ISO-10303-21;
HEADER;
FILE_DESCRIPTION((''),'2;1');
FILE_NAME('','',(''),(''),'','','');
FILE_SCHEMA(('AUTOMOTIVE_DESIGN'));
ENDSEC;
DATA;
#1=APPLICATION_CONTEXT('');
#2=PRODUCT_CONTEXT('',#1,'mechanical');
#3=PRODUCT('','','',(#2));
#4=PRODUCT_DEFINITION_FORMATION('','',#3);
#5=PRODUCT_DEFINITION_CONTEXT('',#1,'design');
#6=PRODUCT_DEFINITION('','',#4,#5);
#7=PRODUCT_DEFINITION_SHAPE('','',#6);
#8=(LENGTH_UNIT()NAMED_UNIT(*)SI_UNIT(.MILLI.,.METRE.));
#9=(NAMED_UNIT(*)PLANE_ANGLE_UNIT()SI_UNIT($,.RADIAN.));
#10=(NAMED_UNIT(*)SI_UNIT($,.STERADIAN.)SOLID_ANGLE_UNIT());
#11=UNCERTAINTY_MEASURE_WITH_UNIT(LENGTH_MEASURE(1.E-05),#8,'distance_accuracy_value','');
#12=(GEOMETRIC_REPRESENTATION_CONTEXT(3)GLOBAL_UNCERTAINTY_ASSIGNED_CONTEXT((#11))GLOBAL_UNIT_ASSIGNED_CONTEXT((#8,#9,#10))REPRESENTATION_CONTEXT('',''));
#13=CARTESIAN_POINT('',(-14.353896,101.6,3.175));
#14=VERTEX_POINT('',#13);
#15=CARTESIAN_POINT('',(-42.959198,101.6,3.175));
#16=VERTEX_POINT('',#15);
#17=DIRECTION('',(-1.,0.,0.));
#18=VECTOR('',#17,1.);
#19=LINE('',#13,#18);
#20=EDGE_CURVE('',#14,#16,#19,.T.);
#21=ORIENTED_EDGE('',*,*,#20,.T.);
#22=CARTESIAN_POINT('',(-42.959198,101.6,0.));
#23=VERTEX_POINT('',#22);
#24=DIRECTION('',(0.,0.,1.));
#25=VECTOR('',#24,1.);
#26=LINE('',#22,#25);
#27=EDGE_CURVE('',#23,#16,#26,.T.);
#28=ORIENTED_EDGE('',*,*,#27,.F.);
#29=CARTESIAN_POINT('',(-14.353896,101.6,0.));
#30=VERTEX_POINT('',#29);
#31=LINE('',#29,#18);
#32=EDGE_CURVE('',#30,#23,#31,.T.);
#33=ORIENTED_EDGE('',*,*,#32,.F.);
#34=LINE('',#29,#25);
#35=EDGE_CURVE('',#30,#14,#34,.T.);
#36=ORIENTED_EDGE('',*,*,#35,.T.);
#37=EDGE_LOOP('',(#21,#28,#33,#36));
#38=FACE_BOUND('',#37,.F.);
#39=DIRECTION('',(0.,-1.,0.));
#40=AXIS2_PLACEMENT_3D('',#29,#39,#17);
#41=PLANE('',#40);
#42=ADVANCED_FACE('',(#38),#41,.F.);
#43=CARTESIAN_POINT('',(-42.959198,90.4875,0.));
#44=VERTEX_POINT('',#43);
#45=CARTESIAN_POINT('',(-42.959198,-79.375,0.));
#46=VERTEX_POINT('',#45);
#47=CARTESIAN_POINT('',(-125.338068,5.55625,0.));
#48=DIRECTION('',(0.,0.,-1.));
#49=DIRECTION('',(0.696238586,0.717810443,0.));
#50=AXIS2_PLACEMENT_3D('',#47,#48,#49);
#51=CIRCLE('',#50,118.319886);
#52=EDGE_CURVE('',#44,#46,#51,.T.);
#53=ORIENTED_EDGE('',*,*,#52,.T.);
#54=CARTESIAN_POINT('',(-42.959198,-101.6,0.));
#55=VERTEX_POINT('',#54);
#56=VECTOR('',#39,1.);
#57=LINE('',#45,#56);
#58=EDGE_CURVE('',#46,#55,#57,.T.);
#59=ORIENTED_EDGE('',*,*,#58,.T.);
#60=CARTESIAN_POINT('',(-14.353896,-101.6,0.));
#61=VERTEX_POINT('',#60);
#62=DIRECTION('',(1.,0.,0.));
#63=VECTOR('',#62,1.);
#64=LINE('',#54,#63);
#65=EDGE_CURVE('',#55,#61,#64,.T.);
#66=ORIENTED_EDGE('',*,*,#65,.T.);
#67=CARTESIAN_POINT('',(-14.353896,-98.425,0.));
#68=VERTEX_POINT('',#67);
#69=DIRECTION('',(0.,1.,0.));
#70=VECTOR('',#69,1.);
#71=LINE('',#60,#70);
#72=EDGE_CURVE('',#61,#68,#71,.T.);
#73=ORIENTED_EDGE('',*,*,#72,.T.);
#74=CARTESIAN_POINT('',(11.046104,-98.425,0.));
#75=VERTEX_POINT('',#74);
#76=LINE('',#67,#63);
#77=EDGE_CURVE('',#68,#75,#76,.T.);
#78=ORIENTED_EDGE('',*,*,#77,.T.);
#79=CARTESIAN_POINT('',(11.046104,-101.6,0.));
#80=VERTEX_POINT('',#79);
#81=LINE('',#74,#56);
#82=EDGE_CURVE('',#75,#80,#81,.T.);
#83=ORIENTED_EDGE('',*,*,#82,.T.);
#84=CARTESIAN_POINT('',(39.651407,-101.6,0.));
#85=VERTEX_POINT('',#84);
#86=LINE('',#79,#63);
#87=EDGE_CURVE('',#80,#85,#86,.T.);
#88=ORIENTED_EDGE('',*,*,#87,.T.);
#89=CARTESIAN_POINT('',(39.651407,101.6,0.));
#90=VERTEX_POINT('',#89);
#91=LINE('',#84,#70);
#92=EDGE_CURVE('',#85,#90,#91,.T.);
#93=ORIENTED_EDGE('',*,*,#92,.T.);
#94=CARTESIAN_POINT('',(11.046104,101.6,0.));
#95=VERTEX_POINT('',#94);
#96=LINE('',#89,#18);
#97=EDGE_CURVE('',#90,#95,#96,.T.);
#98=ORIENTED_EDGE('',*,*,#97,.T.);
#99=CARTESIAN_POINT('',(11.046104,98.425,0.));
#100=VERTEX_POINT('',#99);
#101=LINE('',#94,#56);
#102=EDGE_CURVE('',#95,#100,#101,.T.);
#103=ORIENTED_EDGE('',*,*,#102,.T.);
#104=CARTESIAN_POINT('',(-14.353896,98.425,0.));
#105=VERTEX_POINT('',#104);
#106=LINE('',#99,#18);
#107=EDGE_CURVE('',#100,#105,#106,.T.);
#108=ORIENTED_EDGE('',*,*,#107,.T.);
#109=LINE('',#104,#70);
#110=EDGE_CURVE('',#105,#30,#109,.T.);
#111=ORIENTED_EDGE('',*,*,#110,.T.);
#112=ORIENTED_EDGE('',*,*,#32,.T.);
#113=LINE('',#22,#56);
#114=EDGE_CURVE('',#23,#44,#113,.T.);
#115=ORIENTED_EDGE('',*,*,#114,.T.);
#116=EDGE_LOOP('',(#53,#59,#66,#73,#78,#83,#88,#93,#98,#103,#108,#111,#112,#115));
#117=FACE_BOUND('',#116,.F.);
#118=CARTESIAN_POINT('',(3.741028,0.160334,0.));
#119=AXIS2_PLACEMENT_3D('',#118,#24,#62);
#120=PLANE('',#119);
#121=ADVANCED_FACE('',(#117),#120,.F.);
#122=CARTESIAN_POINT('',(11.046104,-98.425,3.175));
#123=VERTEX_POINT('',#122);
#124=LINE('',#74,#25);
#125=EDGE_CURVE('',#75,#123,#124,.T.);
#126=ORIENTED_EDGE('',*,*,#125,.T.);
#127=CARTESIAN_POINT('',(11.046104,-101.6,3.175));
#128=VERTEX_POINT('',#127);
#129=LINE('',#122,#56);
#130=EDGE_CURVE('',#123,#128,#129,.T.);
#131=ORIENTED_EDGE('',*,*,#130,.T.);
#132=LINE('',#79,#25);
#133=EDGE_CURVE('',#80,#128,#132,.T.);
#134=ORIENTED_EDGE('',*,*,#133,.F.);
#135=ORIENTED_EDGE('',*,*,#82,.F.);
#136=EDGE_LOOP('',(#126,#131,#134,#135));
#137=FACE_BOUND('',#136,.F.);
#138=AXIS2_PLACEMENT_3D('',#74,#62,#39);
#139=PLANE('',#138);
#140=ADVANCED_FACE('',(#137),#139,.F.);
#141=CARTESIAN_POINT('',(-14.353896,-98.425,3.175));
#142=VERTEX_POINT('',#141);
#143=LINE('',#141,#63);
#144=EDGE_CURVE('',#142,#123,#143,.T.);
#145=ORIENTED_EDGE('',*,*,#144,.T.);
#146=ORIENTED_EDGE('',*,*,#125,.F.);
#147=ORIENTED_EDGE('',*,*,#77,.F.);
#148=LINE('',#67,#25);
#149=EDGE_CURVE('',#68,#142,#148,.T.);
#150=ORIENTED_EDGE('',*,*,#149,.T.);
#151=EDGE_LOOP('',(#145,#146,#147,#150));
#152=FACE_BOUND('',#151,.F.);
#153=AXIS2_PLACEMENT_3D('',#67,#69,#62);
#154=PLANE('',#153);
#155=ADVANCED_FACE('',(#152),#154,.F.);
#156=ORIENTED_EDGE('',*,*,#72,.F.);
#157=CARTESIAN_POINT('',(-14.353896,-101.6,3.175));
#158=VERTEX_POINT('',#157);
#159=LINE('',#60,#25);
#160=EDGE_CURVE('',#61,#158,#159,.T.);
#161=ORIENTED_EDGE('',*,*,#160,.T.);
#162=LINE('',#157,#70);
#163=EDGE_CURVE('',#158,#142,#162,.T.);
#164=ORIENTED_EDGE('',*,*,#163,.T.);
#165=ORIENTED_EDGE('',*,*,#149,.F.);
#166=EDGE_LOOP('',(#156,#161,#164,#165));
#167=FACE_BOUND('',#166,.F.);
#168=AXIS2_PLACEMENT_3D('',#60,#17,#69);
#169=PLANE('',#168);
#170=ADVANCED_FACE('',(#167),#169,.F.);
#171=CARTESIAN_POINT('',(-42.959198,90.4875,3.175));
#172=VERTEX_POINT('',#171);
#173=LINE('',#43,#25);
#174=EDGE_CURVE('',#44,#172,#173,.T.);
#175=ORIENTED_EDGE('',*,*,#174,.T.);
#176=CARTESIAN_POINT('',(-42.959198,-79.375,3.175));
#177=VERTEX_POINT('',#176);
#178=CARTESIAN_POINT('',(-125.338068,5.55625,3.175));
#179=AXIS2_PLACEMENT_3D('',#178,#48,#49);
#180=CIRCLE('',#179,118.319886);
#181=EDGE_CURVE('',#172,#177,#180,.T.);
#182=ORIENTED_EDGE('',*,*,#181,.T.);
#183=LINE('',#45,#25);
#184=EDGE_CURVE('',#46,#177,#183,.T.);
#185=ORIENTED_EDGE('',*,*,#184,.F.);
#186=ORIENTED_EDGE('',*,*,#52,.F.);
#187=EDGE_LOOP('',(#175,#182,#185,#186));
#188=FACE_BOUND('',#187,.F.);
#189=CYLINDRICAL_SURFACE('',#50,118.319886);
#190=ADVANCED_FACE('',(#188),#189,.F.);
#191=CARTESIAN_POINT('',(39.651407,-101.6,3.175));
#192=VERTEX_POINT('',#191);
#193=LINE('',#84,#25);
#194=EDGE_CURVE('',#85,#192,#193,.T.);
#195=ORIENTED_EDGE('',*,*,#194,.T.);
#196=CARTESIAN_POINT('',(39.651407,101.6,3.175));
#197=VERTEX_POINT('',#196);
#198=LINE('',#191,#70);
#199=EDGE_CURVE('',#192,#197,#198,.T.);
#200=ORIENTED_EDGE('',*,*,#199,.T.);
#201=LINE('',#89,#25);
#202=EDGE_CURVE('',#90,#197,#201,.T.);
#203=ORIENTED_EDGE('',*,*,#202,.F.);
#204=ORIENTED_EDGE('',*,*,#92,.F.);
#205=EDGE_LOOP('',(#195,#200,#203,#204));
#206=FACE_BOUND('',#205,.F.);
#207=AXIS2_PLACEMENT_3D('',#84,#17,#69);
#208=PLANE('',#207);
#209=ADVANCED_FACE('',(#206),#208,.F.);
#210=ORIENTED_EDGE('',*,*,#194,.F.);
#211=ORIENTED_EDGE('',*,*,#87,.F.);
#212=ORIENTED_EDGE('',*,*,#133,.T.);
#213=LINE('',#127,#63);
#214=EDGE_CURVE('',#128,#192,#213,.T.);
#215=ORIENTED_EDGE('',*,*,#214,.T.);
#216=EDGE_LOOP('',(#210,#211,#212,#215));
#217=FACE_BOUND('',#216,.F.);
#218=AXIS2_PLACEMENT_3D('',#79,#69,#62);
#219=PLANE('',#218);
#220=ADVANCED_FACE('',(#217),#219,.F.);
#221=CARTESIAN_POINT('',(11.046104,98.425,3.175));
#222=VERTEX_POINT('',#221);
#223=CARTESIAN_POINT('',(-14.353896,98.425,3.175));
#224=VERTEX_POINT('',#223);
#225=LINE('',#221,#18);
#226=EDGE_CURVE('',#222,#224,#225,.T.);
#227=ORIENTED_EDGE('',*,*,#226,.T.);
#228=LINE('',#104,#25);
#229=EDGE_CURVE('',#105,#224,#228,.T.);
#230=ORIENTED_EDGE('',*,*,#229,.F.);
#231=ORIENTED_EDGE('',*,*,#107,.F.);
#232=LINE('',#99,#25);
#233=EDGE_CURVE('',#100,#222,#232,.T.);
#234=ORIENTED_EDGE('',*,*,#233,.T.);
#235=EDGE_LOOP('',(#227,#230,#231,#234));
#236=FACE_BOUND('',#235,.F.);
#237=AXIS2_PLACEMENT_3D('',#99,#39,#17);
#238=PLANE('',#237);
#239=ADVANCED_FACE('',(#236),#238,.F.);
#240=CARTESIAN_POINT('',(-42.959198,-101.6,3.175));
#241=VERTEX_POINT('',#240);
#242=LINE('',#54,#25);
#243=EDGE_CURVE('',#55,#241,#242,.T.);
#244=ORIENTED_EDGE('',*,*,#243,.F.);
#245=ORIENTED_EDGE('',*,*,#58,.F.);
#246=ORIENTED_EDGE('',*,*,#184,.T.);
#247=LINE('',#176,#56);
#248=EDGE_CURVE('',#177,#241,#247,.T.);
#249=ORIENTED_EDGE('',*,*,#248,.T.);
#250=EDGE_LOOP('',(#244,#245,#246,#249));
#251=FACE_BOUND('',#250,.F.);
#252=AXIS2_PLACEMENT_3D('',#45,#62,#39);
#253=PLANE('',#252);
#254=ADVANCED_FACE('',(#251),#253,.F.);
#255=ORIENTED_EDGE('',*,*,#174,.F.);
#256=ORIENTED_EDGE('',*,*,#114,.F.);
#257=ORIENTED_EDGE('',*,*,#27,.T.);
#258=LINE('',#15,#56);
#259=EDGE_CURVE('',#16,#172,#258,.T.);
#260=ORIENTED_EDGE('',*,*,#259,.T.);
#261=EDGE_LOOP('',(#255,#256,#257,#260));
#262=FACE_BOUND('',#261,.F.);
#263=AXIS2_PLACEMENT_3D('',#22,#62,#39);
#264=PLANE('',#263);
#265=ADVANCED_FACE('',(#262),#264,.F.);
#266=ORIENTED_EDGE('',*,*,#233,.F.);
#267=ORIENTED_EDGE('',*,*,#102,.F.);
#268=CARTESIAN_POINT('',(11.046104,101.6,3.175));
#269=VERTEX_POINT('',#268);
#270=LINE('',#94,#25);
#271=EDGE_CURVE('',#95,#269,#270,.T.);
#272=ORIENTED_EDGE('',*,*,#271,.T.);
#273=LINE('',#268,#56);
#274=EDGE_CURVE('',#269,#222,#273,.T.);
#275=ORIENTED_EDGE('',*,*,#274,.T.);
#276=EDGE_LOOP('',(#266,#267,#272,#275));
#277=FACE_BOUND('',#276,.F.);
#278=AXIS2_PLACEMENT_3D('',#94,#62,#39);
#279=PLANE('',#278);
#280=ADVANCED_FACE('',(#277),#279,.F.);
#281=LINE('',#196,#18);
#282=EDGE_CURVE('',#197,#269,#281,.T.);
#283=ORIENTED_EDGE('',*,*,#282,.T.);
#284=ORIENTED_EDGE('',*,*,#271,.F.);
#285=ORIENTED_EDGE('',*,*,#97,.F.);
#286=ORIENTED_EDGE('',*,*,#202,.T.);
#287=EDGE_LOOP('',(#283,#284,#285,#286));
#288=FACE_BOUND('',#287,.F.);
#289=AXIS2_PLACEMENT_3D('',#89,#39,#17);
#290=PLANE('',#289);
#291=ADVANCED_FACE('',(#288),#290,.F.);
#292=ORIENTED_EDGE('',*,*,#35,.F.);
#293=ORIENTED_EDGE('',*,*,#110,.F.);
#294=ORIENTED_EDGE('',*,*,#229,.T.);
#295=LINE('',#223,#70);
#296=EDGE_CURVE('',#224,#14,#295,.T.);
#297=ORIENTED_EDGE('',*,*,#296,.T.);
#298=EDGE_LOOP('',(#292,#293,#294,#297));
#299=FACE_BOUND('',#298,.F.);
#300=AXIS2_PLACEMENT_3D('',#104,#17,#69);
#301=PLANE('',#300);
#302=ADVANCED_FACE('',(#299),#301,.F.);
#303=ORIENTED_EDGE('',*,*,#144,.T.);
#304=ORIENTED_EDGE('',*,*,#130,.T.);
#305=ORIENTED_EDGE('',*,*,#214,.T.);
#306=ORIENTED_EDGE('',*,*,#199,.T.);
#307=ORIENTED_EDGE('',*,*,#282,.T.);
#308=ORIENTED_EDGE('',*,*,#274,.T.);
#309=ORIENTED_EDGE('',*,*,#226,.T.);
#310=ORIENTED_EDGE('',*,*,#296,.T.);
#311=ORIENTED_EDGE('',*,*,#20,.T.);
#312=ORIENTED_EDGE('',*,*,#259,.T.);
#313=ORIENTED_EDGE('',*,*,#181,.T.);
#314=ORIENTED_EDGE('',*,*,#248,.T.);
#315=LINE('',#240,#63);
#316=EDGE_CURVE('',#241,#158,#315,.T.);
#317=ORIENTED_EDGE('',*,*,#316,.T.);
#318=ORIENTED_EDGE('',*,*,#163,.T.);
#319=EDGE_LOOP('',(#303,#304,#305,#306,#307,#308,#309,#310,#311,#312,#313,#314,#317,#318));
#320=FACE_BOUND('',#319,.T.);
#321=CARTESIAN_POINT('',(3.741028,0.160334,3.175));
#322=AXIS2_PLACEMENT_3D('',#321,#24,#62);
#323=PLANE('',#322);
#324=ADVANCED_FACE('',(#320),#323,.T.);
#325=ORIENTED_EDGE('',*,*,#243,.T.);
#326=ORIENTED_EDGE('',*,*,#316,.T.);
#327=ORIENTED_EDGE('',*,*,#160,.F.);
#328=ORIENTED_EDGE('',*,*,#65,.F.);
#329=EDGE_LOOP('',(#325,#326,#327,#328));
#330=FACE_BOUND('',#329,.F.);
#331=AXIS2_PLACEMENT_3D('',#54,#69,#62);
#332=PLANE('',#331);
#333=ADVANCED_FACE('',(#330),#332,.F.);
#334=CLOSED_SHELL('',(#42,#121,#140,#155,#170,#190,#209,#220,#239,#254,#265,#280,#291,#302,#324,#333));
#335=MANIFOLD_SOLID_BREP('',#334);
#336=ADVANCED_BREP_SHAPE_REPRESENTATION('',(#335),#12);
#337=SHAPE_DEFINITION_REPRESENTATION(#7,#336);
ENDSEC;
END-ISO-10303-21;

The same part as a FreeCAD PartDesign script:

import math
import FreeCAD as App
import Part
import Sketcher
from FreeCAD import Vector
Q = App.Units.Quantity

doc = App.newDocument("Part")
params = doc.addObject("Spreadsheet::Sheet", "Params")
for row, (alias, value) in enumerate([
    ("sketch1_width", "1 in"),
    ("sketch1_height", "8 in"),
    ("sketch1_height2", "0.875 in"),
    ("sketch1_height3", "0.125 in"),
    ("sketch1_height4", "0.4375 in"),
    ("pad1_length", "0.125 in"),
], start=1):
    params.set(f"A{row}", alias)
    params.set(f"B{row}", "=" + value)
    params.setAlias(f"B{row}", alias)

body = doc.addObject("PartDesign::Body", "Body")

# Sketch on XY plane
sketch1 = body.newObject("Sketcher::SketchObject", "Sketch")
sketch1.AttachmentSupport = (doc.getObject("XY_Plane"), [""])
sketch1.MapMode = "FlatFace"
sketch1.addGeometry([
    Part.LineSegment(Vector(-43, -79.4, 0), Vector(-43, -101.6, 0)),  # 0
    Part.LineSegment(Vector(-43, -101.6, 0), Vector(-14.4, -101.6, 0)),  # 1
    Part.LineSegment(Vector(-14.4, -101.6, 0), Vector(-14.4, -98.4, 0)),  # 2
    Part.LineSegment(Vector(-14.4, -98.4, 0), Vector(11, -98.4, 0)),  # 3
    Part.LineSegment(Vector(11, -98.4, 0), Vector(11, -101.6, 0)),  # 4
    Part.LineSegment(Vector(11, -101.6, 0), Vector(39.7, -101.6, 0)),  # 5
    Part.LineSegment(Vector(39.7, -101.6, 0), Vector(39.7, 101.6, 0)),  # 6
    Part.LineSegment(Vector(39.7, 101.6, 0), Vector(11, 101.6, 0)),  # 7
    Part.LineSegment(Vector(11, 101.6, 0), Vector(11, 98.4, 0)),  # 8
    Part.LineSegment(Vector(11, 98.4, 0), Vector(-14.4, 98.4, 0)),  # 9
    Part.LineSegment(Vector(-14.4, 98.4, 0), Vector(-14.4, 101.6, 0)),  # 10
    Part.LineSegment(Vector(-14.4, 101.6, 0), Vector(-43, 101.6, 0)),  # 11
    Part.LineSegment(Vector(-43, 101.6, 0), Vector(-43, 90.5, 0)),  # 12
    Part.ArcOfCircle(Part.Circle(Vector(-125.3, 5.6, 0), Vector(0, 0, 1), 118.3), math.radians(-46), math.radians(46)),  # 13
], False)
sketch1.addConstraint([
    Sketcher.Constraint("Coincident", 0, 2, 1, 1),
    Sketcher.Constraint("Coincident", 1, 2, 2, 1),
    Sketcher.Constraint("Coincident", 2, 2, 3, 1),
    Sketcher.Constraint("Coincident", 3, 2, 4, 1),
    Sketcher.Constraint("Coincident", 4, 2, 5, 1),
    Sketcher.Constraint("Coincident", 5, 2, 6, 1),
    Sketcher.Constraint("Coincident", 6, 2, 7, 1),
    Sketcher.Constraint("Coincident", 7, 2, 8, 1),
    Sketcher.Constraint("Coincident", 8, 2, 9, 1),
    Sketcher.Constraint("Coincident", 9, 2, 10, 1),
    Sketcher.Constraint("Coincident", 10, 2, 11, 1),
    Sketcher.Constraint("Coincident", 11, 2, 12, 1),
    Sketcher.Constraint("Coincident", 12, 2, 13, 2),
    Sketcher.Constraint("Coincident", 13, 1, 0, 1),
    Sketcher.Constraint("Vertical", 0),
    Sketcher.Constraint("Horizontal", 1),
    Sketcher.Constraint("Vertical", 2),
    Sketcher.Constraint("Horizontal", 3),
    Sketcher.Constraint("Vertical", 4),
    Sketcher.Constraint("Horizontal", 5),
    Sketcher.Constraint("Vertical", 6),
    Sketcher.Constraint("Horizontal", 7),
    Sketcher.Constraint("Vertical", 8),
    Sketcher.Constraint("Horizontal", 9),
    Sketcher.Constraint("Vertical", 10),
    Sketcher.Constraint("Horizontal", 11),
    Sketcher.Constraint("Vertical", 12),
    Sketcher.Constraint("Symmetric", 4, 2, 7, 2, -1),
    Sketcher.Constraint("Symmetric", 2, 2, 9, 2, -1),
    Sketcher.Constraint("Symmetric", 0, 2, 11, 2, -1),
    Sketcher.Constraint("Horizontal", 1, 2, 4, 2),
    Sketcher.Constraint("Equal", 1, 5),
    Sketcher.Constraint("DistanceX", 3, 1, 3, 2, Q("1 in")),
    Sketcher.Constraint("DistanceY", 6, 1, 6, 2, Q("8 in")),
    Sketcher.Constraint("DistanceY", 0, 2, 0, 1, Q("0.875 in")),
    Sketcher.Constraint("DistanceY", 2, 1, 2, 2, Q("0.125 in")),
    Sketcher.Constraint("DistanceY", 12, 2, 12, 1, Q("0.4375 in")),
    Sketcher.Constraint("Radius", 13, 118.319886),
    Sketcher.Constraint("DistanceX", 13, 1, 2, 2, 28.605302),
    Sketcher.Constraint("DistanceX", 13, 3, -1, 1, 125.338068),
])
sketch1.setExpression("Constraints[32]", "Params.sketch1_width")
sketch1.setExpression("Constraints[33]", "Params.sketch1_height")
sketch1.setExpression("Constraints[34]", "Params.sketch1_height2")
sketch1.setExpression("Constraints[35]", "Params.sketch1_height3")
sketch1.setExpression("Constraints[36]", "Params.sketch1_height4")
pad1 = body.newObject("PartDesign::Pad", "Pad")
pad1.Profile = sketch1
pad1.setExpression("Length", "Params.pad1_length")

doc.recompute()
